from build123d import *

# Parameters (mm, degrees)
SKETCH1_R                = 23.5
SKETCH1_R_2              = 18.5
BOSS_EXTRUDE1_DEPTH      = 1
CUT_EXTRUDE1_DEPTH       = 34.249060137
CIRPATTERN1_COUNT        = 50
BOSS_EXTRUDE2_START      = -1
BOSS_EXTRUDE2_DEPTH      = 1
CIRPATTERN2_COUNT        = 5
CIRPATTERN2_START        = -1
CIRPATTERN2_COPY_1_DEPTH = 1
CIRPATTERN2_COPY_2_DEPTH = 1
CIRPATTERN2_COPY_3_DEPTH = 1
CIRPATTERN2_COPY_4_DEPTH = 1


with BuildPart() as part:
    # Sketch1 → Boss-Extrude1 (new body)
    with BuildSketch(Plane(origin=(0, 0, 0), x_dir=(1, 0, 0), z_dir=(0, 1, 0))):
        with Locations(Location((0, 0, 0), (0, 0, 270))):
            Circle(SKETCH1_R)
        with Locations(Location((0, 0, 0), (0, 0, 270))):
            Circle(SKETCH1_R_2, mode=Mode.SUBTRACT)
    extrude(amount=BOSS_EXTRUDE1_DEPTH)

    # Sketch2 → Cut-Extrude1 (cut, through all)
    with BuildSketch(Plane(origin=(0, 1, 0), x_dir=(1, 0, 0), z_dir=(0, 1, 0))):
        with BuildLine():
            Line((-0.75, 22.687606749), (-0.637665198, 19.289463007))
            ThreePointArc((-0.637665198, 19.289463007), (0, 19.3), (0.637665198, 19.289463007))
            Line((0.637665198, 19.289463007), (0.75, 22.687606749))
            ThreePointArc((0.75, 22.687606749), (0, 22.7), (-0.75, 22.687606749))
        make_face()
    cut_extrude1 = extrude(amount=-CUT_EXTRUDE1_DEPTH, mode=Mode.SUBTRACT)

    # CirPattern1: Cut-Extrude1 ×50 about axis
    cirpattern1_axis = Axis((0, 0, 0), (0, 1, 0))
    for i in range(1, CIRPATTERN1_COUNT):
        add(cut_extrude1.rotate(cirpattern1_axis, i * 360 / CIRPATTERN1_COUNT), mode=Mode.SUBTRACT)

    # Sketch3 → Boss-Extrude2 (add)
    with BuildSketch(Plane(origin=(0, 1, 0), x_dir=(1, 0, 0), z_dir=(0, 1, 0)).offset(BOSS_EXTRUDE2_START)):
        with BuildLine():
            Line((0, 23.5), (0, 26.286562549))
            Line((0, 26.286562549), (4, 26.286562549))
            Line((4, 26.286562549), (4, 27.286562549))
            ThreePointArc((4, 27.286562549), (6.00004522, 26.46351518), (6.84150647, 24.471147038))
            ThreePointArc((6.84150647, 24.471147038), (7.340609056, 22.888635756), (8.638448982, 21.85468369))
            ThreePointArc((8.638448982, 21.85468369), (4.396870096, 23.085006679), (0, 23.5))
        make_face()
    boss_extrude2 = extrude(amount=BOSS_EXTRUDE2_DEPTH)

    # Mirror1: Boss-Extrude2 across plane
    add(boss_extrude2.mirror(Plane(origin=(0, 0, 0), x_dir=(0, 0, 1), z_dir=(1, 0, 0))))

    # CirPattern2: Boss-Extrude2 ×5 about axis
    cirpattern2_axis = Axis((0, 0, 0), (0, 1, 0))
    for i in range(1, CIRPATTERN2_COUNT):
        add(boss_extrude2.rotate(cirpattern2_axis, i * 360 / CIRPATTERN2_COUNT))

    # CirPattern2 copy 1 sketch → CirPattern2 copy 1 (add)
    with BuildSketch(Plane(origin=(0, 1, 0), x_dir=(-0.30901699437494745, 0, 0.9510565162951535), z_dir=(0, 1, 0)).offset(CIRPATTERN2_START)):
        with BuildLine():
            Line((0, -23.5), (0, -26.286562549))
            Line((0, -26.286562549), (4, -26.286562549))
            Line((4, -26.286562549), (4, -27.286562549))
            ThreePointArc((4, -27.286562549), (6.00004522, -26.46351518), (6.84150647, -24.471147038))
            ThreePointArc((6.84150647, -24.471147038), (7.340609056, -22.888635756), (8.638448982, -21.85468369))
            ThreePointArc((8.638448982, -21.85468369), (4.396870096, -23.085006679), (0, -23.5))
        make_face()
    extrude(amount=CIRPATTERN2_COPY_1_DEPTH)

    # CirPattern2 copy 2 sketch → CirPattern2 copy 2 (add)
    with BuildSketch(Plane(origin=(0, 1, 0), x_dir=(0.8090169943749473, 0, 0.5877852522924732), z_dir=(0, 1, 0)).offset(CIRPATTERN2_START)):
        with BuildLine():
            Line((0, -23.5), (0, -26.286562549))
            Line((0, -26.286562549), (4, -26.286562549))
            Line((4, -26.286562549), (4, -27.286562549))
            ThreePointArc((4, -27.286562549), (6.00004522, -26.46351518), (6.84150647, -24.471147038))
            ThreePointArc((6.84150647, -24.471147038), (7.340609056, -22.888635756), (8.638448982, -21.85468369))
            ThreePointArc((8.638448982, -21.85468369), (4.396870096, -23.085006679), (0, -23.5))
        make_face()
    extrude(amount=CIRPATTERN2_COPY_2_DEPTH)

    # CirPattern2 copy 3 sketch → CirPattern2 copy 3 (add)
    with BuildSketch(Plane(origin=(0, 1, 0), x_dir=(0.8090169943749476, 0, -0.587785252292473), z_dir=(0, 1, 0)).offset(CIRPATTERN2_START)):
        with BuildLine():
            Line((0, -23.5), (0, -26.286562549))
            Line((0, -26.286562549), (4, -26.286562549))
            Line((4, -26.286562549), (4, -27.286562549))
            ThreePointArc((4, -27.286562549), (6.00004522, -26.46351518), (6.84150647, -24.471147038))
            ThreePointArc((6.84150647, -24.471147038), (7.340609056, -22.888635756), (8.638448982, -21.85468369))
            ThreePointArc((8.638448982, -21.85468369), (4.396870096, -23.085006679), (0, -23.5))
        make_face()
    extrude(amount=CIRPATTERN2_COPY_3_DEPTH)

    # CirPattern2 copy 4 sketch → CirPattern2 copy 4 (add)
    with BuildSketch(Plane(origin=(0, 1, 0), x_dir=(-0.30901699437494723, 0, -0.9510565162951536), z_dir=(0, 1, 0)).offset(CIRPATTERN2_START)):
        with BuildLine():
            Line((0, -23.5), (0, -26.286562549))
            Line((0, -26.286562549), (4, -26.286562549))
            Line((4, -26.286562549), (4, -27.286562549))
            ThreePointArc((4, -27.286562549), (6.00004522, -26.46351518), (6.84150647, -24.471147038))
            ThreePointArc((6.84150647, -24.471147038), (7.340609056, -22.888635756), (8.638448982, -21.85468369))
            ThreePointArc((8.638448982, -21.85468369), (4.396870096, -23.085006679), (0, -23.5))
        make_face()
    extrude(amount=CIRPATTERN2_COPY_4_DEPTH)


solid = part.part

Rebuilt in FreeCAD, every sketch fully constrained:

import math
import FreeCAD as App
import Part
import Sketcher

V = App.Vector
Q = App.Units.Quantity

doc = App.newDocument("Part")
body = doc.addObject("PartDesign::Body", "Body")

sketch1 = body.newObject("Sketcher::SketchObject", "Sketch")
sketch1.AttachmentSupport = (doc.getObject("XZ_Plane"), [""])
sketch1.MapMode = "FlatFace"
sketch1.addGeometry(Part.Circle(V(0, 0, 0), V(0, 0, 1), 24), False)
sketch1.addGeometry(Part.Circle(V(0, 0, 0), V(0, 0, 1), 18), False)
sketch1.addConstraint(Sketcher.Constraint("Coincident", 0, 3, -1, 1))
sketch1.addConstraint(Sketcher.Constraint("Coincident", 1, 3, -1, 1))
sketch1.addConstraint(Sketcher.Constraint("Diameter", 0, Q("47 mm")))
sketch1.addConstraint(Sketcher.Constraint("Diameter", 1, Q("37 mm")))
pad1 = body.newObject("PartDesign::Pad", "Pad")
pad1.Profile = sketch1
pad1.Length = 1
pad1.Reversed = True

sketch2 = body.newObject("Sketcher::SketchObject", "Sketch001")
sketch2.AttachmentSupport = (doc.getObject("XZ_Plane"), [""])
sketch2.MapMode = "FlatFace"
sketch2.AttachmentOffset = App.Placement(V(0, 0, -1), App.Rotation())
sketch2.addGeometry(Part.LineSegment(V(-0.8, -22.7, 0), V(-0.6, -19.3, 0)), False)
sketch2.addGeometry(Part.ArcOfCircle(Part.Circle(V(0, 0, 0), V(0, 0, 1), 19.3), math.radians(-91.89), math.radians(-88.11)), False)
sketch2.addGeometry(Part.LineSegment(V(0.6, -19.3, 0), V(0.8, -22.7, 0)), False)
sketch2.addGeometry(Part.ArcOfCircle(Part.Circle(V(0, 0, 0), V(0, 0, 1), 22.7), math.radians(-91.89), math.radians(-88.11)), False)
sketch2.addConstraint(Sketcher.Constraint("Coincident", 0, 2, 1, 1))
sketch2.addConstraint(Sketcher.Constraint("Coincident", 1, 2, 2, 1))
sketch2.addConstraint(Sketcher.Constraint("Coincident", 2, 2, 3, 2))
sketch2.addConstraint(Sketcher.Constraint("Coincident", 3, 1, 0, 1))
sketch2.addConstraint(Sketcher.Constraint("Coincident", 1, 3, -1, 1))
sketch2.addConstraint(Sketcher.Constraint("Coincident", 3, 3, -1, 1))
sketch2.addConstraint(Sketcher.Constraint("Horizontal", 0, 2, 1, 2))
sketch2.addConstraint(Sketcher.Constraint("Horizontal", 2, 2, 3, 1))
sketch2.addConstraint(Sketcher.Constraint("Radius", 1, Q("19.3 mm")))
sketch2.addConstraint(Sketcher.Constraint("Radius", 3, Q("22.7 mm")))
sketch2.addConstraint(Sketcher.Constraint("DistanceX", 3, 1, 2, 2, Q("1.5 mm")))
sketch2.addConstraint(Sketcher.Constraint("DistanceX", 0, 2, 1, 2, Q("1.27533 mm")))
pocket1 = body.newObject("PartDesign::Pocket", "Pocket")
pocket1.Profile = sketch2
pocket1.Type = "ThroughAll"
pocket1.Reversed = True
doc.recompute()

polarpattern = body.newObject("PartDesign::PolarPattern", "PolarPattern")
polarpattern.Originals = [pocket1]
polarpattern.Axis = (doc.getObject("Y_Axis"), [""])
polarpattern.Angle = 360
polarpattern.Occurrences = 50
body.Tip = polarpattern

sketch3 = body.newObject("Sketcher::SketchObject", "Sketch002")
sketch3.AttachmentSupport = (doc.getObject("XZ_Plane"), [""])
sketch3.MapMode = "FlatFace"
sketch3.addGeometry(Part.LineSegment(V(0, -26.3, 0), V(0, -23.5, 0)), False)
sketch3.addGeometry(Part.ArcOfCircle(Part.Circle(V(0, 0, 0), V(0, 0, 1), 23.5), math.radians(-90), math.radians(-68)), False)
sketch3.addGeometry(Part.ArcOfCircle(Part.Circle(V(9.7, -24.5, 0), V(0, 0, 1), 2.8), math.radians(112), math.radians(179)), False)
sketch3.addGeometry(Part.ArcOfCircle(Part.Circle(V(4, -24.4, 0), V(0, 0, 1), 2.8), math.radians(-90), math.radians(-1)), False)
sketch3.addGeometry(Part.LineSegment(V(4, -27.3, 0), V(4, -26.3, 0)), False)
sketch3.addGeometry(Part.LineSegment(V(4, -26.3, 0), V(0, -26.3, 0)), False)
sketch3.addConstraint(Sketcher.Constraint("Coincident", 0, 2, 1, 1))
sketch3.addConstraint(Sketcher.Constraint("Tangent", 1, 2, 2, 1))
sketch3.addConstraint(Sketcher.Constraint("Tangent", 2, 2, 3, 2))
sketch3.addConstraint(Sketcher.Constraint("Coincident", 3, 1, 4, 1))
sketch3.addConstraint(Sketcher.Constraint("Coincident", 4, 2, 5, 1))
sketch3.addConstraint(Sketcher.Constraint("Coincident", 5, 2, 0, 1))
sketch3.addConstraint(Sketcher.Constraint("Vertical", 0))
sketch3.addConstraint(Sketcher.Constraint("Vertical", 4))
sketch3.addConstraint(Sketcher.Constraint("Horizontal", 5))
sketch3.addConstraint(Sketcher.Constraint("Coincident", 1, 3, -1, 1))
sketch3.addConstraint(Sketcher.Constraint("Equal", 2, 3))
sketch3.addConstraint(Sketcher.Constraint("PointOnObject", 0, 2, -2))
sketch3.addConstraint(Sketcher.Constraint("Radius", 1, Q("23.5 mm")))
sketch3.addConstraint(Sketcher.Constraint("DistanceX", 5, 2, 5, 1, Q("4 mm")))
sketch3.addConstraint(Sketcher.Constraint("DistanceY", 4, 1, 4, 2, Q("1 mm")))
sketch3.addConstraint(Sketcher.Constraint("DistanceX", -1, 1, 3, 3, Q("4 mm")))
sketch3.addConstraint(Sketcher.Constraint("Radius", 2, Q("2.841627 mm")))
sketch3.addConstraint(Sketcher.Constraint("DistanceY", 0, 1, 0, 2, Q("2.786563 mm")))
pad2 = body.newObject("PartDesign::Pad", "Pad001")
pad2.Profile = sketch3
pad2.Length = 1
pad2.Reversed = True
doc.recompute()

mirrored = body.newObject("PartDesign::Mirrored", "Mirrored")
mirrored.Originals = [pad2]
mirrored.MirrorPlane = (doc.getObject("YZ_Plane"), [""])
body.Tip = mirrored
doc.recompute()

polarpattern2 = body.newObject("PartDesign::PolarPattern", "PolarPattern001")
polarpattern2.Originals = [pad2]
polarpattern2.Axis = (doc.getObject("Y_Axis"), [""])
polarpattern2.Angle = 360
polarpattern2.Occurrences = 5
body.Tip = polarpattern2

sketch4 = body.newObject("Sketcher::SketchObject", "Sketch003")
sketch4.AttachmentSupport = (doc.getObject("XZ_Plane"), [""])
sketch4.MapMode = "FlatFace"
sketch4.addGeometry(Part.LineSegment(V(-22.3, -7.3, 0), V(-25, -8.1, 0)), False)
sketch4.addGeometry(Part.LineSegment(V(-25, -8.1, 0), V(-26.2, -4.3, 0)), False)
sketch4.addGeometry(Part.LineSegment(V(-26.2, -4.3, 0), V(-27.2, -4.6, 0)), False)
sketch4.addGeometry(Part.ArcOfCircle(Part.Circle(V(-24.5, -3.7, 0), V(0, 0, 1), 2.8), math.radians(109), math.radians(198)), False)
sketch4.addGeometry(Part.ArcOfCircle(Part.Circle(V(-26.3, 1.6, 0), V(0, 0, 1), 2.8), math.radians(-71), math.radians(-4)), False)
sketch4.addGeometry(Part.ArcOfCircle(Part.Circle(V(0, 0, 0), V(0, 0, 1), 23.5), math.radians(176), math.radians(198)), False)
sketch4.addConstraint(Sketcher.Constraint("Coincident", 0, 2, 1, 1))
sketch4.addConstraint(Sketcher.Constraint("Coincident", 1, 2, 2, 1))
sketch4.addConstraint(Sketcher.Constraint("Coincident", 2, 2, 3, 2))
sketch4.addConstraint(Sketcher.Constraint("Tangent", 3, 1, 4, 1))
sketch4.addConstraint(Sketcher.Constraint("Tangent", 4, 2, 5, 1))
sketch4.addConstraint(Sketcher.Constraint("Coincident", 5, 2, 0, 1))
sketch4.addConstraint(Sketcher.Constraint("Coincident", 5, 3, -1, 1))
sketch4.addConstraint(Sketcher.Constraint("Equal", 3, 4))
sketch4.addConstraint(Sketcher.Constraint("Perpendicular", 0, 1))
sketch4.addConstraint(Sketcher.Constraint("Perpendicular", 1, 2))
sketch4.addConstraint(Sketcher.Constraint("Radius", 5, Q("23.5 mm")))
sketch4.addConstraint(Sketcher.Constraint("Angle", 0, Q("-162 deg")))
sketch4.addConstraint(Sketcher.Constraint("Distance", 1, Q("4 mm")))
sketch4.addConstraint(Sketcher.Constraint("Distance", 2, Q("1 mm")))
sketch4.addConstraint(Sketcher.Constraint("Radius", 3, Q("2.841627 mm")))
sketch4.addConstraint(Sketcher.Constraint("DistanceY", 5, 2, -1, 1, Q("7.261899 mm")))
sketch4.addConstraint(Sketcher.Constraint("DistanceX", 4, 3, -1, 1, Q("26.290588 mm")))
sketch4.addConstraint(Sketcher.Constraint("DistanceY", 1, 2, -1, 1, Q("4.318768 mm")))
pad3 = body.newObject("PartDesign::Pad", "Pad002")
pad3.Profile = sketch4
pad3.Length = 1
pad3.Reversed = True

sketch5 = body.newObject("Sketcher::SketchObject", "Sketch004")
sketch5.AttachmentSupport = (doc.getObject("XZ_Plane"), [""])
sketch5.MapMode = "FlatFace"
sketch5.addGeometry(Part.LineSegment(V(-13.8, 19, 0), V(-15.5, 21.3, 0)), False)
sketch5.addGeometry(Part.LineSegment(V(-15.5, 21.3, 0), V(-12.2, 23.6, 0)), False)
sketch5.addGeometry(Part.LineSegment(V(-12.2, 23.6, 0), V(-12.8, 24.4, 0)), False)
sketch5.addGeometry(Part.ArcOfCircle(Part.Circle(V(-11.1, 22.1, 0), V(0, 0, 1), 2.8), math.radians(37), math.radians(126)), False)
sketch5.addGeometry(Part.ArcOfCircle(Part.Circle(V(-6.6, 25.5, 0), V(0, 0, 1), 2.8), math.radians(-143), math.radians(-76)), False)
sketch5.addGeometry(Part.ArcOfCircle(Part.Circle(V(0, 0, 0), V(0, 0, 1), 23.5), math.radians(104), math.radians(126)), False)
sketch5.addConstraint(Sketcher.Constraint("Coincident", 0, 2, 1, 1))
sketch5.addConstraint(Sketcher.Constraint("Coincident", 1, 2, 2, 1))
sketch5.addConstraint(Sketcher.Constraint("Coincident", 2, 2, 3, 2))
sketch5.addConstraint(Sketcher.Constraint("Tangent", 3, 1, 4, 1))
sketch5.addConstraint(Sketcher.Constraint("Tangent", 4, 2, 5, 1))
sketch5.addConstraint(Sketcher.Constraint("Coincident", 5, 2, 0, 1))
sketch5.addConstraint(Sketcher.Constraint("Coincident", 5, 3, -1, 1))
sketch5.addConstraint(Sketcher.Constraint("Equal", 3, 4))
sketch5.addConstraint(Sketcher.Constraint("Perpendicular", 0, 1))
sketch5.addConstraint(Sketcher.Constraint("Perpendicular", 1, 2))
sketch5.addConstraint(Sketcher.Constraint("Radius", 5, Q("23.5 mm")))
sketch5.addConstraint(Sketcher.Constraint("Angle", 0, Q("126 deg")))
sketch5.addConstraint(Sketcher.Constraint("Distance", 1, Q("4 mm")))
sketch5.addConstraint(Sketcher.Constraint("Distance", 2, Q("1 mm")))
sketch5.addConstraint(Sketcher.Constraint("Radius", 3, Q("2.841627 mm")))
sketch5.addConstraint(Sketcher.Constraint("DistanceY", -1, 1, 5, 2, Q("19.011899 mm")))
sketch5.addConstraint(Sketcher.Constraint("DistanceY", 3, 1, 4, 3, Q("1.691401 mm")))
sketch5.addConstraint(Sketcher.Constraint("DistanceX", 1, 2, 3, 1, Q("3.365901 mm")))
pad4 = body.newObject("PartDesign::Pad", "Pad003")
pad4.Profile = sketch5
pad4.Length = 1
pad4.Reversed = True

sketch6 = body.newObject("Sketcher::SketchObject", "Sketch005")
sketch6.AttachmentSupport = (doc.getObject("XZ_Plane"), [""])
sketch6.MapMode = "FlatFace"
sketch6.addGeometry(Part.LineSegment(V(13.8, 19, 0), V(15.5, 21.3, 0)), False)
sketch6.addGeometry(Part.LineSegment(V(15.5, 21.3, 0), V(18.7, 18.9, 0)), False)
sketch6.addGeometry(Part.LineSegment(V(18.7, 18.9, 0), V(19.3, 19.7, 0)), False)
sketch6.addGeometry(Part.ArcOfCircle(Part.Circle(V(17.6, 17.4, 0), V(0, 0, 1), 2.8), math.radians(-35), math.radians(54)), False)
sketch6.addGeometry(Part.ArcOfCircle(Part.Circle(V(22.2, 14.1, 0), V(0, 0, 1), 2.8), math.radians(145), math.radians(212)), False)
sketch6.addGeometry(Part.ArcOfCircle(Part.Circle(V(0, 0, 0), V(0, 0, 1), 23.5), math.radians(32), math.radians(54)), False)
sketch6.addConstraint(Sketcher.Constraint("Coincident", 0, 2, 1, 1))
sketch6.addConstraint(Sketcher.Constraint("Coincident", 1, 2, 2, 1))
sketch6.addConstraint(Sketcher.Constraint("Coincident", 2, 2, 3, 2))
sketch6.addConstraint(Sketcher.Constraint("Tangent", 3, 1, 4, 1))
sketch6.addConstraint(Sketcher.Constraint("Tangent", 4, 2, 5, 1))
sketch6.addConstraint(Sketcher.Constraint("Coincident", 5, 2, 0, 1))
sketch6.addConstraint(Sketcher.Constraint("Coincident", 5, 3, -1, 1))
sketch6.addConstraint(Sketcher.Constraint("Equal", 3, 4))
sketch6.addConstraint(Sketcher.Constraint("Perpendicular", 0, 1))
sketch6.addConstraint(Sketcher.Constraint("Perpendicular", 1, 2))
sketch6.addConstraint(Sketcher.Constraint("Radius", 5, Q("23.5 mm")))
sketch6.addConstraint(Sketcher.Constraint("Angle", 0, Q("54 deg")))
sketch6.addConstraint(Sketcher.Constraint("Distance", 1, Q("4 mm")))
sketch6.addConstraint(Sketcher.Constraint("Distance", 2, Q("1 mm")))
sketch6.addConstraint(Sketcher.Constraint("Radius", 3, Q("2.841627 mm")))
sketch6.addConstraint(Sketcher.Constraint("DistanceY", -1, 1, 5, 2, Q("19.011899 mm")))
sketch6.addConstraint(Sketcher.Constraint("DistanceX", 2, 2, 4, 3, Q("2.958201 mm")))
sketch6.addConstraint(Sketcher.Constraint("DistanceX", 5, 2, 0, 2, Q("1.6379 mm")))
pad5 = body.newObject("PartDesign::Pad", "Pad004")
pad5.Profile = sketch6
pad5.Length = 1
pad5.Reversed = True

sketch7 = body.newObject("Sketcher::SketchObject", "Sketch006")
sketch7.AttachmentSupport = (doc.getObject("XZ_Plane"), [""])
sketch7.MapMode = "FlatFace"
sketch7.addGeometry(Part.LineSegment(V(22.3, -7.3, 0), V(25, -8.1, 0)), False)
sketch7.addGeometry(Part.LineSegment(V(25, -8.1, 0), V(23.8, -11.9, 0)), False)
sketch7.addGeometry(Part.LineSegment(V(23.8, -11.9, 0), V(24.7, -12.2, 0)), False)
sketch7.addGeometry(Part.ArcOfCircle(Part.Circle(V(22, -11.4, 0), V(0, 0, 1), 2.8), math.radians(-107), math.radians(-18)), False)
sketch7.addGeometry(Part.ArcOfCircle(Part.Circle(V(20.3, -16.8, 0), V(0, 0, 1), 2.8), math.radians(73), math.radians(140)), False)
sketch7.addGeometry(Part.ArcOfCircle(Part.Circle(V(0, 0, 0), V(0, 0, 1), 23.5), math.radians(-40), math.radians(-18)), False)
sketch7.addConstraint(Sketcher.Constraint("Coincident", 0, 2, 1, 1))
sketch7.addConstraint(Sketcher.Constraint("Coincident", 1, 2, 2, 1))
sketch7.addConstraint(Sketcher.Constraint("Coincident", 2, 2, 3, 2))
sketch7.addConstraint(Sketcher.Constraint("Tangent", 3, 1, 4, 1))
sketch7.addConstraint(Sketcher.Constraint("Tangent", 4, 2, 5, 1))
sketch7.addConstraint(Sketcher.Constraint("Coincident", 5, 2, 0, 1))
sketch7.addConstraint(Sketcher.Constraint("Coincident", 5, 3, -1, 1))
sketch7.addConstraint(Sketcher.Constraint("Equal", 3, 4))
sketch7.addConstraint(Sketcher.Constraint("Perpendicular", 0, 1))
sketch7.addConstraint(Sketcher.Constraint("Perpendicular", 1, 2))
sketch7.addConstraint(Sketcher.Constraint("Radius", 5, Q("23.5 mm")))
sketch7.addConstraint(Sketcher.Constraint("Angle", 0, Q("-18 deg")))
sketch7.addConstraint(Sketcher.Constraint("Distance", 1, Q("4 mm")))
sketch7.addConstraint(Sketcher.Constraint("Distance", 2, Q("1 mm")))
sketch7.addConstraint(Sketcher.Constraint("Radius", 3, Q("2.841627 mm")))
sketch7.addConstraint(Sketcher.Constraint("DistanceY", 5, 2, -1, 1, Q("7.261899 mm")))
sketch7.addConstraint(Sketcher.Constraint("DistanceY", 4, 3, 0, 2, Q("8.656198 mm")))
sketch7.addConstraint(Sketcher.Constraint("DistanceY", 4, 2, 1, 2, Q("3.041901 mm")))
pad6 = body.newObject("PartDesign::Pad", "Pad005")
pad6.Profile = sketch7
pad6.Length = 1
pad6.Reversed = True

doc.recompute()
